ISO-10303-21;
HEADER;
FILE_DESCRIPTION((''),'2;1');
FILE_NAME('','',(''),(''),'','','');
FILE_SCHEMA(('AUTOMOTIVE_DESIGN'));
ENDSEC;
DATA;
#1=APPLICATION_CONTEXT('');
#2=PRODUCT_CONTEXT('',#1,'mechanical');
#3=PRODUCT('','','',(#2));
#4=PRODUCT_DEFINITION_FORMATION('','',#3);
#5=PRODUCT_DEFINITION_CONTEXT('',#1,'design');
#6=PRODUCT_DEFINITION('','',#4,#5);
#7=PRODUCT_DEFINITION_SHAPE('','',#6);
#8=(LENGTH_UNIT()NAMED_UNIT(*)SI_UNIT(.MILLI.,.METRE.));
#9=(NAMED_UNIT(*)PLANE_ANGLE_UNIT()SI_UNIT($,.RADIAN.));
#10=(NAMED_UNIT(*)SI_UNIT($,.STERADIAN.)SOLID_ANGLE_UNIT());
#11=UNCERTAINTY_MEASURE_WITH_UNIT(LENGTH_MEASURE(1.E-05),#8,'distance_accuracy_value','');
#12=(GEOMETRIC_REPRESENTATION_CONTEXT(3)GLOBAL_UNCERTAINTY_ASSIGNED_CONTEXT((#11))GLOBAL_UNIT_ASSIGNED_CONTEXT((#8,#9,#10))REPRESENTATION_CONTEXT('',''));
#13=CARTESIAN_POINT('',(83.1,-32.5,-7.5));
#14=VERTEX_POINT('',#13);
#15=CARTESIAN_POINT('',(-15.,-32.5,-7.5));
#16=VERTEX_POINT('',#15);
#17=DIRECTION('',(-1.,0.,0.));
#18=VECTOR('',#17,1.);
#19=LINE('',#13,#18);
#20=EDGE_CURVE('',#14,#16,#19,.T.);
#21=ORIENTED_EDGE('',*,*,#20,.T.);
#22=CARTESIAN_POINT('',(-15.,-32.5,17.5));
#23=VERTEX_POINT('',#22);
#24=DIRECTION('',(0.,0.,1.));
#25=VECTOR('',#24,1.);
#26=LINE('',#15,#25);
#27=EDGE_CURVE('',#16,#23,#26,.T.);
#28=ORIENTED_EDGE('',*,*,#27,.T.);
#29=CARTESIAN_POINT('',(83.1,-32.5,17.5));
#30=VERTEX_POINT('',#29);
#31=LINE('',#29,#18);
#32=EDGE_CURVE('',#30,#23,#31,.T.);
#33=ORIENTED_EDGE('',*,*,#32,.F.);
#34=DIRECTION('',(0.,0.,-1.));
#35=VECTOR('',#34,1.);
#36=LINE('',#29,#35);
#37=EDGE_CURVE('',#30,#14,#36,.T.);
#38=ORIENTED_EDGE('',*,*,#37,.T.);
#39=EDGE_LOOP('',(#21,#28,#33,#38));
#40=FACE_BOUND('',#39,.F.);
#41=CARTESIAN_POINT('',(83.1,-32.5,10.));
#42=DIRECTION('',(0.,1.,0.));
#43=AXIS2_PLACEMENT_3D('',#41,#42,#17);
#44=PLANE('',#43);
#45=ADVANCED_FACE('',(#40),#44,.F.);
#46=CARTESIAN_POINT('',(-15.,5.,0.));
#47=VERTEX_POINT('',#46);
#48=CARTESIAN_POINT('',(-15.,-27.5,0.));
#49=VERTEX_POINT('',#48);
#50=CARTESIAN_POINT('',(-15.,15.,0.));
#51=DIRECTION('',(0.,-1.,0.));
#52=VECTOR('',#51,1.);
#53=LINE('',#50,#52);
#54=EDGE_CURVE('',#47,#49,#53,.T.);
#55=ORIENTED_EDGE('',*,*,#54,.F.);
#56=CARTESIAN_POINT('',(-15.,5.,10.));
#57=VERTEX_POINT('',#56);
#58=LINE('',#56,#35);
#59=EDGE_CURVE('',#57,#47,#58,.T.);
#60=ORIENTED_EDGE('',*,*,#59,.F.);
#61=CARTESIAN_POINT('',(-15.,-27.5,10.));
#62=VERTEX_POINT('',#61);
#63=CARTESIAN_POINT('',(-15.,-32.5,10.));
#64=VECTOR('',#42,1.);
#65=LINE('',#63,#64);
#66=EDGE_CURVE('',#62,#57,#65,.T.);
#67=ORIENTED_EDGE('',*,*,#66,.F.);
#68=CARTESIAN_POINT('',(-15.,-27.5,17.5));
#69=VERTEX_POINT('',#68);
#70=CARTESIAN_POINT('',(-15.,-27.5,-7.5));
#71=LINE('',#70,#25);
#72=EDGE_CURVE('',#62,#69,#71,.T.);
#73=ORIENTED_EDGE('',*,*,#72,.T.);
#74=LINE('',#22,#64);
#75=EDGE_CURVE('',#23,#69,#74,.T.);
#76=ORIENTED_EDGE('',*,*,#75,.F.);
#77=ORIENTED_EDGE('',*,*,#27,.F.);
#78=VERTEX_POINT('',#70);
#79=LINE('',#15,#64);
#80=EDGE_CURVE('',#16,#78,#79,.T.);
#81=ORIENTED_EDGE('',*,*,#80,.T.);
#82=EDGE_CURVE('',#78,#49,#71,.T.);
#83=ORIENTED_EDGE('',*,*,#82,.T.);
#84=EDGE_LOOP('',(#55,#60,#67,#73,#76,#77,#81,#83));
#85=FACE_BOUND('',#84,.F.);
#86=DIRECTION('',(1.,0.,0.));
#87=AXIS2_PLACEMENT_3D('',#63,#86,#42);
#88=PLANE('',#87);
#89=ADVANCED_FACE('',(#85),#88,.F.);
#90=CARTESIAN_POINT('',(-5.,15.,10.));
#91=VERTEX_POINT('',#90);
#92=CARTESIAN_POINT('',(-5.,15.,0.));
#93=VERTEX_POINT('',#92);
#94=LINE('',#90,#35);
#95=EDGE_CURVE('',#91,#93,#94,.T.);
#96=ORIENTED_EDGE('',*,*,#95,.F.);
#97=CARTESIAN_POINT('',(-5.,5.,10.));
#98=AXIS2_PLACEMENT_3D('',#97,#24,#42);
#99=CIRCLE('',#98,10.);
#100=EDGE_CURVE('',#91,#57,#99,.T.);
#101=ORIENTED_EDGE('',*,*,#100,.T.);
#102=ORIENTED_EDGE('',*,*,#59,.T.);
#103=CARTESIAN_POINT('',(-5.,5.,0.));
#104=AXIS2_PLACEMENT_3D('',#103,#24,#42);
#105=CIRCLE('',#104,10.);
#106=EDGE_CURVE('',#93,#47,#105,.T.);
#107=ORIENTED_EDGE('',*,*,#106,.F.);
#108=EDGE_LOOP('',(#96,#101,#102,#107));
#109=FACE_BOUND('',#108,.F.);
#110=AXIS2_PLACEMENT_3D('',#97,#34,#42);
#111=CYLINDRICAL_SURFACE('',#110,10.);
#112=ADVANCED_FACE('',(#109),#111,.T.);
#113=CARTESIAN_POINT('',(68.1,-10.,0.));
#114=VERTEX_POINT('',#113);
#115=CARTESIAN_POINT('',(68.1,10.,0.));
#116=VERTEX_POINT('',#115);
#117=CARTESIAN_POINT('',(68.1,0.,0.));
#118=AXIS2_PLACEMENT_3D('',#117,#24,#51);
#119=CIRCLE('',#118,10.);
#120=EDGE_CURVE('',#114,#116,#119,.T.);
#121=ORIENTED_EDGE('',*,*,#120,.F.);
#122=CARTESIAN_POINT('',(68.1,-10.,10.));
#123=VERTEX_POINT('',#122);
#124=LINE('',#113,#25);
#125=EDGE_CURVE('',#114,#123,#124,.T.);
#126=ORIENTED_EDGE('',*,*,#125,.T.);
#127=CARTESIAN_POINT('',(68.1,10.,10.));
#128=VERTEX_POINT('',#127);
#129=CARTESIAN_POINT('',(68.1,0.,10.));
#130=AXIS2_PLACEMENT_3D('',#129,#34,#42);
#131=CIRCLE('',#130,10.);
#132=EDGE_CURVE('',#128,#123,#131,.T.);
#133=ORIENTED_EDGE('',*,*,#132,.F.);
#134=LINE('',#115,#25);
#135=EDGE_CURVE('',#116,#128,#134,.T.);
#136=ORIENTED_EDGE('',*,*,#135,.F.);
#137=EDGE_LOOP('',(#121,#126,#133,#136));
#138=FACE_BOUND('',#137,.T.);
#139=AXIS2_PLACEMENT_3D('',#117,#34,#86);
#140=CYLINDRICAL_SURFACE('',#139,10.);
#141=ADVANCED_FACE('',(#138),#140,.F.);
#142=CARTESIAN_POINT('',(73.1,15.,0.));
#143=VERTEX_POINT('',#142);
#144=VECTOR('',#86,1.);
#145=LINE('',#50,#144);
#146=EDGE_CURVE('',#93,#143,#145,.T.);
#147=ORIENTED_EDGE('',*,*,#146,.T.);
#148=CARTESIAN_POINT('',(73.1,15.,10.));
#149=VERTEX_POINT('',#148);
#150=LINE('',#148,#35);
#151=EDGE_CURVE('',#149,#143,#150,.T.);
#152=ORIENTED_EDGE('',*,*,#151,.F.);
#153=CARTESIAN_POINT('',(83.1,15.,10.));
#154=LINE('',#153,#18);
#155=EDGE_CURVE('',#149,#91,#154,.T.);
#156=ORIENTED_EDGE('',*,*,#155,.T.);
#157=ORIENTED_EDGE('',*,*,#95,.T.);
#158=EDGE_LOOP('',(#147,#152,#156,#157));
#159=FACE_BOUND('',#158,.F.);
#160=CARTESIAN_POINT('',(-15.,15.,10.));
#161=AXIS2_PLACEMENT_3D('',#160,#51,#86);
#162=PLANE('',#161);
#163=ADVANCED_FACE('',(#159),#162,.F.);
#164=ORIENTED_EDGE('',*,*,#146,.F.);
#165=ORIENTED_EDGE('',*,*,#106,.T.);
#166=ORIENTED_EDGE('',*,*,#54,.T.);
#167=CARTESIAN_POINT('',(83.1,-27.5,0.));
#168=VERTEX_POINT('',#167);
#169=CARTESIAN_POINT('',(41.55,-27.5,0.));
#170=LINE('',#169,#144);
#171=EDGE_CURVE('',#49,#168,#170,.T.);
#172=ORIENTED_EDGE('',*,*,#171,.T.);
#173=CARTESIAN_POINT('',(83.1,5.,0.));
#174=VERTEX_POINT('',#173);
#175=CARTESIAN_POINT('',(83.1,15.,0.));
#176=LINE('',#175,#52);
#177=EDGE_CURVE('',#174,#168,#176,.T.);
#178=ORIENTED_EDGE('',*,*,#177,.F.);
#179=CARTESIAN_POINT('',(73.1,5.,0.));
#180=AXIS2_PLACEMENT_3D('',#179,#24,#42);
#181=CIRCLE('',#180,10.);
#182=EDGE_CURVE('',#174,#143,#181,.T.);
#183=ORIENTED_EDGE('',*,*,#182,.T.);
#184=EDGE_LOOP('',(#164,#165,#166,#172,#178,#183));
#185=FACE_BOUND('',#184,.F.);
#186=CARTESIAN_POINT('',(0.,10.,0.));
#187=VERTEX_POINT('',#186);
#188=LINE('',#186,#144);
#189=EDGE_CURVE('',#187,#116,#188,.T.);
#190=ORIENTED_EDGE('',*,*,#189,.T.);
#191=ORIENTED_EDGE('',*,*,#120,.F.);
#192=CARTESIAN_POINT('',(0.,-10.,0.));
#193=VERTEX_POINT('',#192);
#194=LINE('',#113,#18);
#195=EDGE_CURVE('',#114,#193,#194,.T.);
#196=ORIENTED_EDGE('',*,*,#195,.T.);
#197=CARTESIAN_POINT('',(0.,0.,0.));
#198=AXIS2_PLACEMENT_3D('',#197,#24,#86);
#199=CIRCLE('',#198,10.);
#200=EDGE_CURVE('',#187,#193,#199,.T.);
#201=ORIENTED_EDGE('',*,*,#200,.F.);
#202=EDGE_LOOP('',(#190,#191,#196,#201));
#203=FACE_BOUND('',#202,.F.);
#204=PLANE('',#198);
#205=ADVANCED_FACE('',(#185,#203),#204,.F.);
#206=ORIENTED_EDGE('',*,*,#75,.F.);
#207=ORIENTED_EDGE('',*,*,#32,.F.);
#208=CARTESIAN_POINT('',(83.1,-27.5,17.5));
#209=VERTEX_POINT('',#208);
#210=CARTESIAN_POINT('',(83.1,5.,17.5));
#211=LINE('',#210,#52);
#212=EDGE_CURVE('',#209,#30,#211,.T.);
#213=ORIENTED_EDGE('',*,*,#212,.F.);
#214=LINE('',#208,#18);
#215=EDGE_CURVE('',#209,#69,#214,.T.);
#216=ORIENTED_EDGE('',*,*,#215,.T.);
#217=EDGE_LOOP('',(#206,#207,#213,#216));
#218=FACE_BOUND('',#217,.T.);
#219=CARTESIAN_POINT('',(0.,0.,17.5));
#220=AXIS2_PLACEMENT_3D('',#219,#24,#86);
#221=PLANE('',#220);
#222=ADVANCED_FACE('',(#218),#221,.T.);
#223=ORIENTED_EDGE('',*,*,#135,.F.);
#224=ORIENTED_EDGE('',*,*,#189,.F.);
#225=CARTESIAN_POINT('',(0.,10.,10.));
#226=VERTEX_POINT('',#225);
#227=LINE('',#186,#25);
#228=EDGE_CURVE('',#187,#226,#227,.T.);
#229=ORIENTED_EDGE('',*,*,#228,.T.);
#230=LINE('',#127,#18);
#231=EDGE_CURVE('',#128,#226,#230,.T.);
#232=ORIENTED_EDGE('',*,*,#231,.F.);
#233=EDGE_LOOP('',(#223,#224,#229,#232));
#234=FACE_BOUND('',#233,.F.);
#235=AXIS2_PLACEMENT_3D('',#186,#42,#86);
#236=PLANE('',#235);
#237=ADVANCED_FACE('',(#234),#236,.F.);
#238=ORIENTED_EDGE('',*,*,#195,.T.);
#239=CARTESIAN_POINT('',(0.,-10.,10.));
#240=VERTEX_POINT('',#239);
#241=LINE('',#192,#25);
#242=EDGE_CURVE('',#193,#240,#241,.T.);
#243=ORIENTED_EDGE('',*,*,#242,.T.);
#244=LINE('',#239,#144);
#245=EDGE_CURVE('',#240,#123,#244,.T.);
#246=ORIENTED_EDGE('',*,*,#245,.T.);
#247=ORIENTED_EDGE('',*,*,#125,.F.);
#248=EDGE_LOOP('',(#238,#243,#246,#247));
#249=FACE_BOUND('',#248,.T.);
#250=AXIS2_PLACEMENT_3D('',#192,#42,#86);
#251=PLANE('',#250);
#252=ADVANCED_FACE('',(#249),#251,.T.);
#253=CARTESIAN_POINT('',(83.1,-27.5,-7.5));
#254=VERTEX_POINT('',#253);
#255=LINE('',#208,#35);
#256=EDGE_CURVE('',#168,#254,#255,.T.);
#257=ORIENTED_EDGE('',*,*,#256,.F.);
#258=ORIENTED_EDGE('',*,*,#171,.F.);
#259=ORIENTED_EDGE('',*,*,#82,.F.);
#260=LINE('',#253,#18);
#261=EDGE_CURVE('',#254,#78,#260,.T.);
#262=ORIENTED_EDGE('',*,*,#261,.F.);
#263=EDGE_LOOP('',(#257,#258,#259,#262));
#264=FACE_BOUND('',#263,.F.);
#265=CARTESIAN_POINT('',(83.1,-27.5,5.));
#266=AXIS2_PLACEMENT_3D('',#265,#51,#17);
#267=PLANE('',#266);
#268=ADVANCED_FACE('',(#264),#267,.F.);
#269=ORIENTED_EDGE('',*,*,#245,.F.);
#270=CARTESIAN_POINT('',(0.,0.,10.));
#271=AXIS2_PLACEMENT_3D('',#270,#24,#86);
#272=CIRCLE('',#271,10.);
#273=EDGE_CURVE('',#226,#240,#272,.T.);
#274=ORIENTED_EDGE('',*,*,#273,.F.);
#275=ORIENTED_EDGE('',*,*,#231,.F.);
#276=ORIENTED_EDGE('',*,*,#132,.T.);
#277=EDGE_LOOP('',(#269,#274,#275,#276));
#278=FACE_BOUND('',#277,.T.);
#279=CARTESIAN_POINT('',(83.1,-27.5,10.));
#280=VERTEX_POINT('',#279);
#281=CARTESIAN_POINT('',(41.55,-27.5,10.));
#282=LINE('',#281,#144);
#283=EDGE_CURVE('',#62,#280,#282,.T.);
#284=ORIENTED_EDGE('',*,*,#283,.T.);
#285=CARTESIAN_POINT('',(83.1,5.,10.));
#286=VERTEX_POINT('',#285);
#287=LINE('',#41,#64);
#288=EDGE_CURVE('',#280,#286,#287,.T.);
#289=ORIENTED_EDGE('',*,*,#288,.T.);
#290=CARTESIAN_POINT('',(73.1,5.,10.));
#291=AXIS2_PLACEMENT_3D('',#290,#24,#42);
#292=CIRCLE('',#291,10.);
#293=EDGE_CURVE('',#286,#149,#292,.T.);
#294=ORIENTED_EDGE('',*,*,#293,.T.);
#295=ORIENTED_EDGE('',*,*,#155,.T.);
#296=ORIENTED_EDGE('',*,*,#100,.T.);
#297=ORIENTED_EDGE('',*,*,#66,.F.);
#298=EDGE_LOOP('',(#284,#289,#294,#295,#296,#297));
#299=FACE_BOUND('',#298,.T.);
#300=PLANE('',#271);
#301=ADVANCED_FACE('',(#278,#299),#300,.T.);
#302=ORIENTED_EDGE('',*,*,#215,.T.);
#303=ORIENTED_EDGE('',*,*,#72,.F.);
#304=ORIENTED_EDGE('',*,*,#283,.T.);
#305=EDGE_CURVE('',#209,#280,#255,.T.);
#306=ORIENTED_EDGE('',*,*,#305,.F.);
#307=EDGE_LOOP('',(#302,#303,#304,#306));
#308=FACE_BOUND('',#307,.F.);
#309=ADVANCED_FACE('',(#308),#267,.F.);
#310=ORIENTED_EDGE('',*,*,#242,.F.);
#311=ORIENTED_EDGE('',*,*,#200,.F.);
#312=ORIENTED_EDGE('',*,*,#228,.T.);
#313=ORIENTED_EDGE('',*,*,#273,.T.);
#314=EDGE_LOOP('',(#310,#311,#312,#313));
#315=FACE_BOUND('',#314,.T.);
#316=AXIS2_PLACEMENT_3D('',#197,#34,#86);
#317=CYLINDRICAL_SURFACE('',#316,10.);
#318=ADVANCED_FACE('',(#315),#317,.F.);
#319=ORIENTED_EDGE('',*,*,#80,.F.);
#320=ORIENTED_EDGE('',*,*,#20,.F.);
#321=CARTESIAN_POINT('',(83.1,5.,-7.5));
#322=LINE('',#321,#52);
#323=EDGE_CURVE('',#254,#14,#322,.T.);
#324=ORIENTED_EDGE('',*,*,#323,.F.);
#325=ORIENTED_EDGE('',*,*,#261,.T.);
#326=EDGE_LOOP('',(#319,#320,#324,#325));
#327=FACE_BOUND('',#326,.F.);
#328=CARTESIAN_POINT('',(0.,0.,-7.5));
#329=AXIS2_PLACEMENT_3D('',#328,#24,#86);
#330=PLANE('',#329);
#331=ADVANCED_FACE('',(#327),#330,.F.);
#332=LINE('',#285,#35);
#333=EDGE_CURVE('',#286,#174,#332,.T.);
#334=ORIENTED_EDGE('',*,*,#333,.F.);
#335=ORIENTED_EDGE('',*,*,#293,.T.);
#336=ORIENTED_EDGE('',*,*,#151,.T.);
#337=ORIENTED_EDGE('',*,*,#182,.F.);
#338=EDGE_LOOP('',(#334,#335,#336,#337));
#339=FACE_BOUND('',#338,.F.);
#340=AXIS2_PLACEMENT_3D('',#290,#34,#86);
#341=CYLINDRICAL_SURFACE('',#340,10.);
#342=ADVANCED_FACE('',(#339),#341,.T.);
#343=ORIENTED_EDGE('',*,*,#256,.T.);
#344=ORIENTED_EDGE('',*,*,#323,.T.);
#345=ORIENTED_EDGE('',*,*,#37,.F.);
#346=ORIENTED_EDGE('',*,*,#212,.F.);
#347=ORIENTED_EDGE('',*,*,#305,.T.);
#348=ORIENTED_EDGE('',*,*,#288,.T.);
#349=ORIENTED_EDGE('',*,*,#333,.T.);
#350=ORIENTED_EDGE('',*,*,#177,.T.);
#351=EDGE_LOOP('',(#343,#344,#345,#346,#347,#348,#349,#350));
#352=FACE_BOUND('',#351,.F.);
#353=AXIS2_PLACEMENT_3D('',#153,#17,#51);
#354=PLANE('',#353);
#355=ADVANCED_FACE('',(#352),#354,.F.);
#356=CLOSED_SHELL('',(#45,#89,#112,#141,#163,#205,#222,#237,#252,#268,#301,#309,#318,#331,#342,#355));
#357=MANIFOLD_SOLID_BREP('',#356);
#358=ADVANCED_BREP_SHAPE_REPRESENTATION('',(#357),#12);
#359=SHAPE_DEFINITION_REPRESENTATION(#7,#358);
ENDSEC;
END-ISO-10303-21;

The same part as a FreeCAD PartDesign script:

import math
import FreeCAD as App
import Part
import Sketcher
Q = App.Units.Quantity


def edges_at(feature, points):
    """Names of the edges that pass closest to the given points."""
    edges = feature.Shape.Edges
    near = lambda p: min(range(len(edges)), key=lambda i: edges[i].distToShape(Part.Vertex(*p))[0])
    return sorted({f"Edge{near(p) + 1}" for p in points})


def add_polygon(sketch, points):
    """Adds a closed chain of lines whose ends are joined by coincident constraints."""
    first, n = sketch.GeometryCount, len(points)
    for a, b in zip(points, points[1:] + points[:1]):
        sketch.addGeometry(Part.LineSegment(App.Vector(*a, 0), App.Vector(*b, 0)), False)
    for i in range(n):
        sketch.addConstraint(Sketcher.Constraint("Coincident", first + i, 2, first + (i + 1) % n, 1))

doc = App.newDocument("Part")
body = doc.addObject("PartDesign::Body", "Body")

# Sketch on XY plane
sketch1 = body.newObject("Sketcher::SketchObject", "Sketch")
sketch1.AttachmentSupport = (doc.getObject("XY_Plane"), [""])
sketch1.MapMode = "FlatFace"
sketch1.addGeometry(Part.ArcOfCircle(Part.Circle(App.Vector(0, 0, 0), App.Vector(0, 0, 1), 15), math.radians(90), math.radians(270)), False)
sketch1.addGeometry(Part.LineSegment(App.Vector(0, -15, 0), App.Vector(68, -15, 0)), False)
sketch1.addGeometry(Part.ArcOfCircle(Part.Circle(App.Vector(68, 0, 0), App.Vector(0, 0, 1), 15), math.radians(-90), math.radians(90)), False)
sketch1.addGeometry(Part.LineSegment(App.Vector(68, 15, 0), App.Vector(0, 15, 0)), False)
sketch1.addGeometry(Part.ArcOfCircle(Part.Circle(App.Vector(0, 0, 0), App.Vector(0, 0, 1), 10), math.radians(90), math.radians(270)), False)
sketch1.addGeometry(Part.LineSegment(App.Vector(0, 10, 0), App.Vector(68, 10, 0)), False)
sketch1.addGeometry(Part.ArcOfCircle(Part.Circle(App.Vector(68, 0, 0), App.Vector(0, 0, 1), 10), math.radians(-90), math.radians(90)), False)
sketch1.addGeometry(Part.LineSegment(App.Vector(68, -10, 0), App.Vector(0, -10, 0)), False)
sketch1.addConstraint(Sketcher.Constraint("Tangent", 0, 2, 1, 1))
sketch1.addConstraint(Sketcher.Constraint("Tangent", 1, 2, 2, 1))
sketch1.addConstraint(Sketcher.Constraint("Tangent", 2, 2, 3, 1))
sketch1.addConstraint(Sketcher.Constraint("Tangent", 3, 2, 0, 1))
sketch1.addConstraint(Sketcher.Constraint("Tangent", 4, 1, 5, 1))
sketch1.addConstraint(Sketcher.Constraint("Tangent", 5, 2, 6, 2))
sketch1.addConstraint(Sketcher.Constraint("Tangent", 6, 1, 7, 1))
sketch1.addConstraint(Sketcher.Constraint("Tangent", 7, 2, 4, 2))
sketch1.addConstraint(Sketcher.Constraint("Horizontal", 1))
sketch1.addConstraint(Sketcher.Constraint("Horizontal", 3))
sketch1.addConstraint(Sketcher.Constraint("Horizontal", 5))
sketch1.addConstraint(Sketcher.Constraint("Horizontal", 7))
sketch1.addConstraint(Sketcher.Constraint("Coincident", 0, 3, -1, 1))
sketch1.addConstraint(Sketcher.Constraint("Coincident", 4, 3, -1, 1))
sketch1.addConstraint(Sketcher.Constraint("Vertical", 6, 3, 1, 2))
sketch1.addConstraint(Sketcher.Constraint("Radius", 0, Q("15 mm")))
sketch1.addConstraint(Sketcher.Constraint("Radius", 4, Q("10 mm")))
sketch1.addConstraint(Sketcher.Constraint("DistanceX", 1, 1, 1, 2, Q("68.1 mm")))
pad1 = body.newObject("PartDesign::Pad", "Pad")
pad1.Profile = sketch1
pad1.Length = 10

# Sketch on XY plane
sketch2 = body.newObject("Sketcher::SketchObject", "Sketch001")
sketch2.AttachmentSupport = (doc.getObject("XY_Plane"), [""])
sketch2.MapMode = "FlatFace"
sketch2.AttachmentOffset = App.Placement(App.Vector(0, 0, 10), App.Rotation())
add_polygon(sketch2, [(-15, 15), (-15, -32), (83, -32), (83, 15)])  # lines 0-3
sketch2.addGeometry(Part.ArcOfCircle(Part.Circle(App.Vector(0, 0, 0), App.Vector(0, 0, 1), 10), math.radians(90), math.radians(270)), False)  # 4
sketch2.addGeometry(Part.LineSegment(App.Vector(0, 10, 0), App.Vector(68, 10, 0)), False)  # 5
sketch2.addGeometry(Part.ArcOfCircle(Part.Circle(App.Vector(68, 0, 0), App.Vector(0, 0, 1), 10), math.radians(-90), math.radians(90)), False)  # 6
sketch2.addGeometry(Part.LineSegment(App.Vector(68, -10, 0), App.Vector(0, -10, 0)), False)  # 7
sketch2.addConstraint(Sketcher.Constraint("Tangent", 4, 1, 5, 1))
sketch2.addConstraint(Sketcher.Constraint("Tangent", 5, 2, 6, 2))
sketch2.addConstraint(Sketcher.Constraint("Tangent", 6, 1, 7, 1))
sketch2.addConstraint(Sketcher.Constraint("Tangent", 7, 2, 4, 2))
sketch2.addConstraint(Sketcher.Constraint("Vertical", 0))
sketch2.addConstraint(Sketcher.Constraint("Horizontal", 1))
sketch2.addConstraint(Sketcher.Constraint("Vertical", 2))
sketch2.addConstraint(Sketcher.Constraint("Horizontal", 3))
sketch2.addConstraint(Sketcher.Constraint("Horizontal", 5))
sketch2.addConstraint(Sketcher.Constraint("Horizontal", 7))
sketch2.addConstraint(Sketcher.Constraint("Coincident", 4, 3, -1, 1))
sketch2.addConstraint(Sketcher.Constraint("Radius", 4, Q("10 mm")))
sketch2.addConstraint(Sketcher.Constraint("DistanceY", 0, 2, -1, 1, Q("32.5 mm")))
sketch2.addConstraint(Sketcher.Constraint("DistanceX", 1, 1, 1, 2, Q("98.1 mm")))
sketch2.addConstraint(Sketcher.Constraint("DistanceX", 5, 1, 5, 2, Q("68.1 mm")))
sketch2.addConstraint(Sketcher.Constraint("DistanceY", 0, 2, 0, 1, Q("47.5 mm")))
sketch2.addConstraint(Sketcher.Constraint("DistanceX", 0, 2, -1, 1, Q("15 mm")))
pad2 = body.newObject("PartDesign::Pad", "Pad001")
pad2.Profile = sketch2
pad2.Length = 10
pad2.Reversed = True
doc.recompute()

fillet = body.newObject("PartDesign::Fillet", "Fillet")
fillet.Base = (pad2, edges_at(pad2, [(83.1, 15, 5)]))
fillet.Radius = 10
doc.recompute()

fillet2 = body.newObject("PartDesign::Fillet", "Fillet001")
fillet2.Base = (fillet, edges_at(fillet, [(-15, 15, 5)]))
fillet2.Radius = 10

# Sketch on XY plane
sketch3 = body.newObject("Sketcher::SketchObject", "Sketch002")
sketch3.AttachmentSupport = (doc.getObject("XY_Plane"), [""])
sketch3.MapMode = "FlatFace"
sketch3.AttachmentOffset = App.Placement(App.Vector(0, 0, 5), App.Rotation())
add_polygon(sketch3, [(83, -28), (-15, -28), (-15, -32), (83, -32)])  # lines 0-3
sketch3.addConstraint(Sketcher.Constraint("Horizontal", 0))
sketch3.addConstraint(Sketcher.Constraint("Vertical", 1))
sketch3.addConstraint(Sketcher.Constraint("Horizontal", 2))
sketch3.addConstraint(Sketcher.Constraint("Vertical", 3))
sketch3.addConstraint(Sketcher.Constraint("DistanceY", 1, 2, 1, 1, Q("5 mm")))
sketch3.addConstraint(Sketcher.Constraint("DistanceX", 0, 2, 0, 1, Q("98.1 mm")))
sketch3.addConstraint(Sketcher.Constraint("DistanceX", 0, 2, -1, 1, Q("15 mm")))
sketch3.addConstraint(Sketcher.Constraint("DistanceY", 0, 2, -1, 1, Q("27.5 mm")))
pad3 = body.newObject("PartDesign::Pad", "Pad002")
pad3.Profile = sketch3
pad3.Length = 25
pad3.Midplane = True

doc.recompute()
